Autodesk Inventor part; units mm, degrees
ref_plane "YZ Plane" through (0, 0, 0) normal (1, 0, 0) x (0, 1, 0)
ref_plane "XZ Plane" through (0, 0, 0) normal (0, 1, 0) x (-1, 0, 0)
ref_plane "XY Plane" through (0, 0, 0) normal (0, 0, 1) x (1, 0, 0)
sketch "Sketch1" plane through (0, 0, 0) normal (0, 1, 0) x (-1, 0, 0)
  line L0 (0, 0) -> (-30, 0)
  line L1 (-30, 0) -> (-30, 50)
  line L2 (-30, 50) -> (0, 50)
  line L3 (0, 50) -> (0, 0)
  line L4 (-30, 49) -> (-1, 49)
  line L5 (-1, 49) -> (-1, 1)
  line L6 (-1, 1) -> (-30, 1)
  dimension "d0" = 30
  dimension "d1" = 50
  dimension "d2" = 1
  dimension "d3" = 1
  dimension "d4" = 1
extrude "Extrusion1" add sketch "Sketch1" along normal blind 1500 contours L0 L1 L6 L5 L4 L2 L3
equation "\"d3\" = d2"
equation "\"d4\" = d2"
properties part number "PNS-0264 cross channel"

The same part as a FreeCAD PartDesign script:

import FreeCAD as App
import Part
import Sketcher
from FreeCAD import Vector

doc = App.newDocument("Part")
params = doc.addObject("Spreadsheet::Sheet", "Params")
for row, (alias, value) in enumerate([
    ("sketch1_width", "30 mm"),
    ("sketch1_height", "50 mm"),
    ("sketch1_height2", "1 mm"),
    ("pad1_length", "1500 mm"),
], start=1):
    params.set(f"A{row}", alias)
    params.set(f"B{row}", "=" + value)
    params.setAlias(f"B{row}", alias)

body = doc.addObject("PartDesign::Body", "Body")

# Sketch on XZ plane
sketch1 = body.newObject("Sketcher::SketchObject", "Sketch")
sketch1.AttachmentSupport = (doc.getObject("XZ_Plane"), [""])
sketch1.MapMode = "FlatFace"
sketch1.addGeometry([
    Part.LineSegment(Vector(30, 0, 0), Vector(0, 0, 0)),  # 0
    Part.LineSegment(Vector(0, 0, 0), Vector(0, 50, 0)),  # 1
    Part.LineSegment(Vector(0, 50, 0), Vector(30, 50, 0)),  # 2
    Part.LineSegment(Vector(30, 50, 0), Vector(30, 49, 0)),  # 3
    Part.LineSegment(Vector(30, 49, 0), Vector(1, 49, 0)),  # 4
    Part.LineSegment(Vector(1, 49, 0), Vector(1, 1, 0)),  # 5
    Part.LineSegment(Vector(1, 1, 0), Vector(30, 1, 0)),  # 6
    Part.LineSegment(Vector(30, 1, 0), Vector(30, 0, 0)),  # 7
], False)
sketch1.addConstraint([
    Sketcher.Constraint("Coincident", 0, 2, 1, 1),
    Sketcher.Constraint("Coincident", 1, 2, 2, 1),
    Sketcher.Constraint("Coincident", 2, 2, 3, 1),
    Sketcher.Constraint("Coincident", 3, 2, 4, 1),
    Sketcher.Constraint("Coincident", 4, 2, 5, 1),
    Sketcher.Constraint("Coincident", 5, 2, 6, 1),
    Sketcher.Constraint("Coincident", 6, 2, 7, 1),
    Sketcher.Constraint("Coincident", 7, 2, 0, 1),
    Sketcher.Constraint("Horizontal", 0),
    Sketcher.Constraint("Vertical", 1),
    Sketcher.Constraint("Horizontal", 2),
    Sketcher.Constraint("Vertical", 3),
    Sketcher.Constraint("Horizontal", 4),
    Sketcher.Constraint("Vertical", 5),
    Sketcher.Constraint("Horizontal", 6),
    Sketcher.Constraint("Vertical", 7),
    Sketcher.Constraint("Coincident", 0, 2, -1, 1),
    Sketcher.Constraint("Vertical", 3, 2, 6, 2),
    Sketcher.Constraint("Equal", 3, 7),
    Sketcher.Constraint("DistanceX", 0, 2, 0, 1, 30.0),
    Sketcher.Constraint("DistanceY", 1, 1, 1, 2, 50.0),
    Sketcher.Constraint("DistanceY", 3, 2, 3, 1, 1.0),
    Sketcher.Constraint("DistanceX", -1, 1, 4, 2, 1.0),
])
sketch1.setExpression("Constraints[19]", "Params.sketch1_width")
sketch1.setExpression("Constraints[20]", "Params.sketch1_height")
sketch1.setExpression("Constraints[21]", "Params.sketch1_height2")
pad1 = body.newObject("PartDesign::Pad", "Pad")
pad1.Profile = sketch1
pad1.setExpression("Length", "Params.pad1_length")
pad1.Reversed = True

doc.recompute()
